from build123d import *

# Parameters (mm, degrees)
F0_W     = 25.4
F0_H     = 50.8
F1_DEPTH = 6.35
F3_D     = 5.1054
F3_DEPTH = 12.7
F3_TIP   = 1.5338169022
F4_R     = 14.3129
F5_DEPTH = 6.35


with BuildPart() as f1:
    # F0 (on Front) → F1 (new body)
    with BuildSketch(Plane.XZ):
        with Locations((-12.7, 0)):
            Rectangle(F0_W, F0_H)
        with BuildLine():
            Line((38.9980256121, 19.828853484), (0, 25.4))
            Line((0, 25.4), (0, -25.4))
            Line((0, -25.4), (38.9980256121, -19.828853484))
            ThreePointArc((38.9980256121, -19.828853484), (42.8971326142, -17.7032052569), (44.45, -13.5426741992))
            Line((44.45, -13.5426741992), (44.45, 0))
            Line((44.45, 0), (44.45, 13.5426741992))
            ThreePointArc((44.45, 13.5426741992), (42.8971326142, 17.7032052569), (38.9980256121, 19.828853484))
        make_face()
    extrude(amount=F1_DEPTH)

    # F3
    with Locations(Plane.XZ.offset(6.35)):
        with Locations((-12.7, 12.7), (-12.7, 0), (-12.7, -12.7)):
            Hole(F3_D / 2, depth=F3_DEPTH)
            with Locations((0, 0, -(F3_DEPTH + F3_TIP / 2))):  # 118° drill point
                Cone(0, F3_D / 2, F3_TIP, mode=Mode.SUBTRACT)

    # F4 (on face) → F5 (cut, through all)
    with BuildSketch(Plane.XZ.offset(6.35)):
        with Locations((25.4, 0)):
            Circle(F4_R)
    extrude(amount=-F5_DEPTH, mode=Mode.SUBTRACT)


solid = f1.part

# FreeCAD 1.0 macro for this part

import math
import FreeCAD as App
import Part
import Sketcher
Q = App.Units.Quantity

doc = App.newDocument("Part")
body = doc.addObject("PartDesign::Body", "Body")

# Sketch on XZ plane
sketch1 = body.newObject("Sketcher::SketchObject", "Sketch")
sketch1.AttachmentSupport = (doc.getObject("XZ_Plane"), [""])
sketch1.MapMode = "FlatFace"
sketch1.addGeometry([
    Part.LineSegment(App.Vector(-25.4, 25.4, 0), App.Vector(-25.4, -25.4, 0)),  # 0
    Part.LineSegment(App.Vector(-25.4, -25.4, 0), App.Vector(0, -25.4, 0)),  # 1
    Part.LineSegment(App.Vector(0, -25.4, 0), App.Vector(38.998026, -19.828853, 0)),  # 2
    Part.ArcOfCircle(Part.Circle(App.Vector(38.1, -13.542674, 0), App.Vector(0, 0, 1), 6.35), math.radians(-81.869898), math.radians(0)),  # 3
    Part.LineSegment(App.Vector(44.45, -13.542674, 0), App.Vector(44.45, 13.542674, 0)),  # 4
    Part.ArcOfCircle(Part.Circle(App.Vector(38.1, 13.542674, 0), App.Vector(0, 0, 1), 6.35), math.radians(0), math.radians(81.869898)),  # 5
    Part.LineSegment(App.Vector(38.998026, 19.828853, 0), App.Vector(0, 25.4, 0)),  # 6
    Part.LineSegment(App.Vector(0, 25.4, 0), App.Vector(-25.4, 25.4, 0)),  # 7
], False)
sketch1.addConstraint([
    Sketcher.Constraint("Coincident", 0, 2, 1, 1),
    Sketcher.Constraint("Coincident", 1, 2, 2, 1),
    Sketcher.Constraint("Tangent", 2, 2, 3, 1),
    Sketcher.Constraint("Tangent", 3, 2, 4, 1),
    Sketcher.Constraint("Tangent", 4, 2, 5, 1),
    Sketcher.Constraint("Tangent", 5, 2, 6, 1),
    Sketcher.Constraint("Coincident", 6, 2, 7, 1),
    Sketcher.Constraint("Coincident", 7, 2, 0, 1),
    Sketcher.Constraint("Vertical", 0),
    Sketcher.Constraint("Horizontal", 1),
    Sketcher.Constraint("Vertical", 4),
    Sketcher.Constraint("Horizontal", 7),
    Sketcher.Constraint("Equal", 3, 5),
    Sketcher.Constraint("Symmetric", 1, 2, 6, 2, -1, 1),
    Sketcher.Constraint("Symmetric", 2, 2, 5, 2, -1),
    Sketcher.Constraint("DistanceX", 1, 1, 1, 2, Q("1 in")),
    Sketcher.Constraint("DistanceY", 0, 2, 0, 1, Q("2 in")),
    Sketcher.Constraint("Radius", 3, Q("0.25 in")),
    Sketcher.Constraint("DistanceX", -1, 1, 3, 3, Q("1.5 in")),
    Sketcher.Constraint("DistanceY", 4, 1, 4, 2, Q("27.085348 mm")),
])
pad1 = body.newObject("PartDesign::Pad", "Pad")
pad1.Profile = sketch1
pad1.Length = Q("0.25 in")

# Sketch on XZ plane
sketch2 = body.newObject("Sketcher::SketchObject", "Sketch001")
sketch2.AttachmentSupport = (doc.getObject("XZ_Plane"), [""])
sketch2.MapMode = "FlatFace"
sketch2.AttachmentOffset = App.Placement(App.Vector(0, 0, 0.25 * 25.4), App.Rotation())
sketch2.addGeometry([
    Part.Circle(App.Vector(-12.7, 12.7, 0), App.Vector(0, 0, 1), 2.5527),
    Part.Circle(App.Vector(-12.7, 0, 0), App.Vector(0, 0, 1), 2.5527),
    Part.Circle(App.Vector(-12.7, -12.7, 0), App.Vector(0, 0, 1), 2.5527),
], False)
sketch2.addConstraint([
    Sketcher.Constraint("Equal", 0, 1),
    Sketcher.Constraint("Equal", 1, 2),
    Sketcher.Constraint("Symmetric", 0, 3, 2, 3, -1),
    Sketcher.Constraint("PointOnObject", 1, 3, -1),
    Sketcher.Constraint("Vertical", 0, 3, 1, 3),
    Sketcher.Constraint("Diameter", 0, Q("0.201 in")),
    Sketcher.Constraint("DistanceY", 2, 3, 0, 3, Q("1 in")),
    Sketcher.Constraint("DistanceX", 0, 3, -1, 1, Q("0.5 in")),
])
doc.recompute()
hole = body.newObject("PartDesign::Hole", "Hole")
hole.Profile = sketch2
hole.ThreadType = "None"
hole.Diameter = Q("0.201 in")
hole.DepthType = "Dimension"
hole.Depth = Q("0.5 in")
hole.DrillPoint = "Angled"
hole.DrillPointAngle = 118

# Sketch on XZ plane
sketch3 = body.newObject("Sketcher::SketchObject", "Sketch002")
sketch3.AttachmentSupport = (doc.getObject("XZ_Plane"), [""])
sketch3.MapMode = "FlatFace"
sketch3.AttachmentOffset = App.Placement(App.Vector(0, 0, 0.25 * 25.4), App.Rotation())
sketch3.addGeometry(Part.Circle(App.Vector(25.4, 0, 0), App.Vector(0, 0, 1), 14.3129), False)
sketch3.addConstraint([
    Sketcher.Constraint("PointOnObject", 0, 3, -1),
    Sketcher.Constraint("Diameter", 0, Q("1.127 in")),
    Sketcher.Constraint("DistanceX", -1, 1, 0, 3, Q("1 in")),
])
pocket1 = body.newObject("PartDesign::Pocket", "Pocket")
pocket1.Profile = sketch3
pocket1.Type = "ThroughAll"

doc.recompute()
